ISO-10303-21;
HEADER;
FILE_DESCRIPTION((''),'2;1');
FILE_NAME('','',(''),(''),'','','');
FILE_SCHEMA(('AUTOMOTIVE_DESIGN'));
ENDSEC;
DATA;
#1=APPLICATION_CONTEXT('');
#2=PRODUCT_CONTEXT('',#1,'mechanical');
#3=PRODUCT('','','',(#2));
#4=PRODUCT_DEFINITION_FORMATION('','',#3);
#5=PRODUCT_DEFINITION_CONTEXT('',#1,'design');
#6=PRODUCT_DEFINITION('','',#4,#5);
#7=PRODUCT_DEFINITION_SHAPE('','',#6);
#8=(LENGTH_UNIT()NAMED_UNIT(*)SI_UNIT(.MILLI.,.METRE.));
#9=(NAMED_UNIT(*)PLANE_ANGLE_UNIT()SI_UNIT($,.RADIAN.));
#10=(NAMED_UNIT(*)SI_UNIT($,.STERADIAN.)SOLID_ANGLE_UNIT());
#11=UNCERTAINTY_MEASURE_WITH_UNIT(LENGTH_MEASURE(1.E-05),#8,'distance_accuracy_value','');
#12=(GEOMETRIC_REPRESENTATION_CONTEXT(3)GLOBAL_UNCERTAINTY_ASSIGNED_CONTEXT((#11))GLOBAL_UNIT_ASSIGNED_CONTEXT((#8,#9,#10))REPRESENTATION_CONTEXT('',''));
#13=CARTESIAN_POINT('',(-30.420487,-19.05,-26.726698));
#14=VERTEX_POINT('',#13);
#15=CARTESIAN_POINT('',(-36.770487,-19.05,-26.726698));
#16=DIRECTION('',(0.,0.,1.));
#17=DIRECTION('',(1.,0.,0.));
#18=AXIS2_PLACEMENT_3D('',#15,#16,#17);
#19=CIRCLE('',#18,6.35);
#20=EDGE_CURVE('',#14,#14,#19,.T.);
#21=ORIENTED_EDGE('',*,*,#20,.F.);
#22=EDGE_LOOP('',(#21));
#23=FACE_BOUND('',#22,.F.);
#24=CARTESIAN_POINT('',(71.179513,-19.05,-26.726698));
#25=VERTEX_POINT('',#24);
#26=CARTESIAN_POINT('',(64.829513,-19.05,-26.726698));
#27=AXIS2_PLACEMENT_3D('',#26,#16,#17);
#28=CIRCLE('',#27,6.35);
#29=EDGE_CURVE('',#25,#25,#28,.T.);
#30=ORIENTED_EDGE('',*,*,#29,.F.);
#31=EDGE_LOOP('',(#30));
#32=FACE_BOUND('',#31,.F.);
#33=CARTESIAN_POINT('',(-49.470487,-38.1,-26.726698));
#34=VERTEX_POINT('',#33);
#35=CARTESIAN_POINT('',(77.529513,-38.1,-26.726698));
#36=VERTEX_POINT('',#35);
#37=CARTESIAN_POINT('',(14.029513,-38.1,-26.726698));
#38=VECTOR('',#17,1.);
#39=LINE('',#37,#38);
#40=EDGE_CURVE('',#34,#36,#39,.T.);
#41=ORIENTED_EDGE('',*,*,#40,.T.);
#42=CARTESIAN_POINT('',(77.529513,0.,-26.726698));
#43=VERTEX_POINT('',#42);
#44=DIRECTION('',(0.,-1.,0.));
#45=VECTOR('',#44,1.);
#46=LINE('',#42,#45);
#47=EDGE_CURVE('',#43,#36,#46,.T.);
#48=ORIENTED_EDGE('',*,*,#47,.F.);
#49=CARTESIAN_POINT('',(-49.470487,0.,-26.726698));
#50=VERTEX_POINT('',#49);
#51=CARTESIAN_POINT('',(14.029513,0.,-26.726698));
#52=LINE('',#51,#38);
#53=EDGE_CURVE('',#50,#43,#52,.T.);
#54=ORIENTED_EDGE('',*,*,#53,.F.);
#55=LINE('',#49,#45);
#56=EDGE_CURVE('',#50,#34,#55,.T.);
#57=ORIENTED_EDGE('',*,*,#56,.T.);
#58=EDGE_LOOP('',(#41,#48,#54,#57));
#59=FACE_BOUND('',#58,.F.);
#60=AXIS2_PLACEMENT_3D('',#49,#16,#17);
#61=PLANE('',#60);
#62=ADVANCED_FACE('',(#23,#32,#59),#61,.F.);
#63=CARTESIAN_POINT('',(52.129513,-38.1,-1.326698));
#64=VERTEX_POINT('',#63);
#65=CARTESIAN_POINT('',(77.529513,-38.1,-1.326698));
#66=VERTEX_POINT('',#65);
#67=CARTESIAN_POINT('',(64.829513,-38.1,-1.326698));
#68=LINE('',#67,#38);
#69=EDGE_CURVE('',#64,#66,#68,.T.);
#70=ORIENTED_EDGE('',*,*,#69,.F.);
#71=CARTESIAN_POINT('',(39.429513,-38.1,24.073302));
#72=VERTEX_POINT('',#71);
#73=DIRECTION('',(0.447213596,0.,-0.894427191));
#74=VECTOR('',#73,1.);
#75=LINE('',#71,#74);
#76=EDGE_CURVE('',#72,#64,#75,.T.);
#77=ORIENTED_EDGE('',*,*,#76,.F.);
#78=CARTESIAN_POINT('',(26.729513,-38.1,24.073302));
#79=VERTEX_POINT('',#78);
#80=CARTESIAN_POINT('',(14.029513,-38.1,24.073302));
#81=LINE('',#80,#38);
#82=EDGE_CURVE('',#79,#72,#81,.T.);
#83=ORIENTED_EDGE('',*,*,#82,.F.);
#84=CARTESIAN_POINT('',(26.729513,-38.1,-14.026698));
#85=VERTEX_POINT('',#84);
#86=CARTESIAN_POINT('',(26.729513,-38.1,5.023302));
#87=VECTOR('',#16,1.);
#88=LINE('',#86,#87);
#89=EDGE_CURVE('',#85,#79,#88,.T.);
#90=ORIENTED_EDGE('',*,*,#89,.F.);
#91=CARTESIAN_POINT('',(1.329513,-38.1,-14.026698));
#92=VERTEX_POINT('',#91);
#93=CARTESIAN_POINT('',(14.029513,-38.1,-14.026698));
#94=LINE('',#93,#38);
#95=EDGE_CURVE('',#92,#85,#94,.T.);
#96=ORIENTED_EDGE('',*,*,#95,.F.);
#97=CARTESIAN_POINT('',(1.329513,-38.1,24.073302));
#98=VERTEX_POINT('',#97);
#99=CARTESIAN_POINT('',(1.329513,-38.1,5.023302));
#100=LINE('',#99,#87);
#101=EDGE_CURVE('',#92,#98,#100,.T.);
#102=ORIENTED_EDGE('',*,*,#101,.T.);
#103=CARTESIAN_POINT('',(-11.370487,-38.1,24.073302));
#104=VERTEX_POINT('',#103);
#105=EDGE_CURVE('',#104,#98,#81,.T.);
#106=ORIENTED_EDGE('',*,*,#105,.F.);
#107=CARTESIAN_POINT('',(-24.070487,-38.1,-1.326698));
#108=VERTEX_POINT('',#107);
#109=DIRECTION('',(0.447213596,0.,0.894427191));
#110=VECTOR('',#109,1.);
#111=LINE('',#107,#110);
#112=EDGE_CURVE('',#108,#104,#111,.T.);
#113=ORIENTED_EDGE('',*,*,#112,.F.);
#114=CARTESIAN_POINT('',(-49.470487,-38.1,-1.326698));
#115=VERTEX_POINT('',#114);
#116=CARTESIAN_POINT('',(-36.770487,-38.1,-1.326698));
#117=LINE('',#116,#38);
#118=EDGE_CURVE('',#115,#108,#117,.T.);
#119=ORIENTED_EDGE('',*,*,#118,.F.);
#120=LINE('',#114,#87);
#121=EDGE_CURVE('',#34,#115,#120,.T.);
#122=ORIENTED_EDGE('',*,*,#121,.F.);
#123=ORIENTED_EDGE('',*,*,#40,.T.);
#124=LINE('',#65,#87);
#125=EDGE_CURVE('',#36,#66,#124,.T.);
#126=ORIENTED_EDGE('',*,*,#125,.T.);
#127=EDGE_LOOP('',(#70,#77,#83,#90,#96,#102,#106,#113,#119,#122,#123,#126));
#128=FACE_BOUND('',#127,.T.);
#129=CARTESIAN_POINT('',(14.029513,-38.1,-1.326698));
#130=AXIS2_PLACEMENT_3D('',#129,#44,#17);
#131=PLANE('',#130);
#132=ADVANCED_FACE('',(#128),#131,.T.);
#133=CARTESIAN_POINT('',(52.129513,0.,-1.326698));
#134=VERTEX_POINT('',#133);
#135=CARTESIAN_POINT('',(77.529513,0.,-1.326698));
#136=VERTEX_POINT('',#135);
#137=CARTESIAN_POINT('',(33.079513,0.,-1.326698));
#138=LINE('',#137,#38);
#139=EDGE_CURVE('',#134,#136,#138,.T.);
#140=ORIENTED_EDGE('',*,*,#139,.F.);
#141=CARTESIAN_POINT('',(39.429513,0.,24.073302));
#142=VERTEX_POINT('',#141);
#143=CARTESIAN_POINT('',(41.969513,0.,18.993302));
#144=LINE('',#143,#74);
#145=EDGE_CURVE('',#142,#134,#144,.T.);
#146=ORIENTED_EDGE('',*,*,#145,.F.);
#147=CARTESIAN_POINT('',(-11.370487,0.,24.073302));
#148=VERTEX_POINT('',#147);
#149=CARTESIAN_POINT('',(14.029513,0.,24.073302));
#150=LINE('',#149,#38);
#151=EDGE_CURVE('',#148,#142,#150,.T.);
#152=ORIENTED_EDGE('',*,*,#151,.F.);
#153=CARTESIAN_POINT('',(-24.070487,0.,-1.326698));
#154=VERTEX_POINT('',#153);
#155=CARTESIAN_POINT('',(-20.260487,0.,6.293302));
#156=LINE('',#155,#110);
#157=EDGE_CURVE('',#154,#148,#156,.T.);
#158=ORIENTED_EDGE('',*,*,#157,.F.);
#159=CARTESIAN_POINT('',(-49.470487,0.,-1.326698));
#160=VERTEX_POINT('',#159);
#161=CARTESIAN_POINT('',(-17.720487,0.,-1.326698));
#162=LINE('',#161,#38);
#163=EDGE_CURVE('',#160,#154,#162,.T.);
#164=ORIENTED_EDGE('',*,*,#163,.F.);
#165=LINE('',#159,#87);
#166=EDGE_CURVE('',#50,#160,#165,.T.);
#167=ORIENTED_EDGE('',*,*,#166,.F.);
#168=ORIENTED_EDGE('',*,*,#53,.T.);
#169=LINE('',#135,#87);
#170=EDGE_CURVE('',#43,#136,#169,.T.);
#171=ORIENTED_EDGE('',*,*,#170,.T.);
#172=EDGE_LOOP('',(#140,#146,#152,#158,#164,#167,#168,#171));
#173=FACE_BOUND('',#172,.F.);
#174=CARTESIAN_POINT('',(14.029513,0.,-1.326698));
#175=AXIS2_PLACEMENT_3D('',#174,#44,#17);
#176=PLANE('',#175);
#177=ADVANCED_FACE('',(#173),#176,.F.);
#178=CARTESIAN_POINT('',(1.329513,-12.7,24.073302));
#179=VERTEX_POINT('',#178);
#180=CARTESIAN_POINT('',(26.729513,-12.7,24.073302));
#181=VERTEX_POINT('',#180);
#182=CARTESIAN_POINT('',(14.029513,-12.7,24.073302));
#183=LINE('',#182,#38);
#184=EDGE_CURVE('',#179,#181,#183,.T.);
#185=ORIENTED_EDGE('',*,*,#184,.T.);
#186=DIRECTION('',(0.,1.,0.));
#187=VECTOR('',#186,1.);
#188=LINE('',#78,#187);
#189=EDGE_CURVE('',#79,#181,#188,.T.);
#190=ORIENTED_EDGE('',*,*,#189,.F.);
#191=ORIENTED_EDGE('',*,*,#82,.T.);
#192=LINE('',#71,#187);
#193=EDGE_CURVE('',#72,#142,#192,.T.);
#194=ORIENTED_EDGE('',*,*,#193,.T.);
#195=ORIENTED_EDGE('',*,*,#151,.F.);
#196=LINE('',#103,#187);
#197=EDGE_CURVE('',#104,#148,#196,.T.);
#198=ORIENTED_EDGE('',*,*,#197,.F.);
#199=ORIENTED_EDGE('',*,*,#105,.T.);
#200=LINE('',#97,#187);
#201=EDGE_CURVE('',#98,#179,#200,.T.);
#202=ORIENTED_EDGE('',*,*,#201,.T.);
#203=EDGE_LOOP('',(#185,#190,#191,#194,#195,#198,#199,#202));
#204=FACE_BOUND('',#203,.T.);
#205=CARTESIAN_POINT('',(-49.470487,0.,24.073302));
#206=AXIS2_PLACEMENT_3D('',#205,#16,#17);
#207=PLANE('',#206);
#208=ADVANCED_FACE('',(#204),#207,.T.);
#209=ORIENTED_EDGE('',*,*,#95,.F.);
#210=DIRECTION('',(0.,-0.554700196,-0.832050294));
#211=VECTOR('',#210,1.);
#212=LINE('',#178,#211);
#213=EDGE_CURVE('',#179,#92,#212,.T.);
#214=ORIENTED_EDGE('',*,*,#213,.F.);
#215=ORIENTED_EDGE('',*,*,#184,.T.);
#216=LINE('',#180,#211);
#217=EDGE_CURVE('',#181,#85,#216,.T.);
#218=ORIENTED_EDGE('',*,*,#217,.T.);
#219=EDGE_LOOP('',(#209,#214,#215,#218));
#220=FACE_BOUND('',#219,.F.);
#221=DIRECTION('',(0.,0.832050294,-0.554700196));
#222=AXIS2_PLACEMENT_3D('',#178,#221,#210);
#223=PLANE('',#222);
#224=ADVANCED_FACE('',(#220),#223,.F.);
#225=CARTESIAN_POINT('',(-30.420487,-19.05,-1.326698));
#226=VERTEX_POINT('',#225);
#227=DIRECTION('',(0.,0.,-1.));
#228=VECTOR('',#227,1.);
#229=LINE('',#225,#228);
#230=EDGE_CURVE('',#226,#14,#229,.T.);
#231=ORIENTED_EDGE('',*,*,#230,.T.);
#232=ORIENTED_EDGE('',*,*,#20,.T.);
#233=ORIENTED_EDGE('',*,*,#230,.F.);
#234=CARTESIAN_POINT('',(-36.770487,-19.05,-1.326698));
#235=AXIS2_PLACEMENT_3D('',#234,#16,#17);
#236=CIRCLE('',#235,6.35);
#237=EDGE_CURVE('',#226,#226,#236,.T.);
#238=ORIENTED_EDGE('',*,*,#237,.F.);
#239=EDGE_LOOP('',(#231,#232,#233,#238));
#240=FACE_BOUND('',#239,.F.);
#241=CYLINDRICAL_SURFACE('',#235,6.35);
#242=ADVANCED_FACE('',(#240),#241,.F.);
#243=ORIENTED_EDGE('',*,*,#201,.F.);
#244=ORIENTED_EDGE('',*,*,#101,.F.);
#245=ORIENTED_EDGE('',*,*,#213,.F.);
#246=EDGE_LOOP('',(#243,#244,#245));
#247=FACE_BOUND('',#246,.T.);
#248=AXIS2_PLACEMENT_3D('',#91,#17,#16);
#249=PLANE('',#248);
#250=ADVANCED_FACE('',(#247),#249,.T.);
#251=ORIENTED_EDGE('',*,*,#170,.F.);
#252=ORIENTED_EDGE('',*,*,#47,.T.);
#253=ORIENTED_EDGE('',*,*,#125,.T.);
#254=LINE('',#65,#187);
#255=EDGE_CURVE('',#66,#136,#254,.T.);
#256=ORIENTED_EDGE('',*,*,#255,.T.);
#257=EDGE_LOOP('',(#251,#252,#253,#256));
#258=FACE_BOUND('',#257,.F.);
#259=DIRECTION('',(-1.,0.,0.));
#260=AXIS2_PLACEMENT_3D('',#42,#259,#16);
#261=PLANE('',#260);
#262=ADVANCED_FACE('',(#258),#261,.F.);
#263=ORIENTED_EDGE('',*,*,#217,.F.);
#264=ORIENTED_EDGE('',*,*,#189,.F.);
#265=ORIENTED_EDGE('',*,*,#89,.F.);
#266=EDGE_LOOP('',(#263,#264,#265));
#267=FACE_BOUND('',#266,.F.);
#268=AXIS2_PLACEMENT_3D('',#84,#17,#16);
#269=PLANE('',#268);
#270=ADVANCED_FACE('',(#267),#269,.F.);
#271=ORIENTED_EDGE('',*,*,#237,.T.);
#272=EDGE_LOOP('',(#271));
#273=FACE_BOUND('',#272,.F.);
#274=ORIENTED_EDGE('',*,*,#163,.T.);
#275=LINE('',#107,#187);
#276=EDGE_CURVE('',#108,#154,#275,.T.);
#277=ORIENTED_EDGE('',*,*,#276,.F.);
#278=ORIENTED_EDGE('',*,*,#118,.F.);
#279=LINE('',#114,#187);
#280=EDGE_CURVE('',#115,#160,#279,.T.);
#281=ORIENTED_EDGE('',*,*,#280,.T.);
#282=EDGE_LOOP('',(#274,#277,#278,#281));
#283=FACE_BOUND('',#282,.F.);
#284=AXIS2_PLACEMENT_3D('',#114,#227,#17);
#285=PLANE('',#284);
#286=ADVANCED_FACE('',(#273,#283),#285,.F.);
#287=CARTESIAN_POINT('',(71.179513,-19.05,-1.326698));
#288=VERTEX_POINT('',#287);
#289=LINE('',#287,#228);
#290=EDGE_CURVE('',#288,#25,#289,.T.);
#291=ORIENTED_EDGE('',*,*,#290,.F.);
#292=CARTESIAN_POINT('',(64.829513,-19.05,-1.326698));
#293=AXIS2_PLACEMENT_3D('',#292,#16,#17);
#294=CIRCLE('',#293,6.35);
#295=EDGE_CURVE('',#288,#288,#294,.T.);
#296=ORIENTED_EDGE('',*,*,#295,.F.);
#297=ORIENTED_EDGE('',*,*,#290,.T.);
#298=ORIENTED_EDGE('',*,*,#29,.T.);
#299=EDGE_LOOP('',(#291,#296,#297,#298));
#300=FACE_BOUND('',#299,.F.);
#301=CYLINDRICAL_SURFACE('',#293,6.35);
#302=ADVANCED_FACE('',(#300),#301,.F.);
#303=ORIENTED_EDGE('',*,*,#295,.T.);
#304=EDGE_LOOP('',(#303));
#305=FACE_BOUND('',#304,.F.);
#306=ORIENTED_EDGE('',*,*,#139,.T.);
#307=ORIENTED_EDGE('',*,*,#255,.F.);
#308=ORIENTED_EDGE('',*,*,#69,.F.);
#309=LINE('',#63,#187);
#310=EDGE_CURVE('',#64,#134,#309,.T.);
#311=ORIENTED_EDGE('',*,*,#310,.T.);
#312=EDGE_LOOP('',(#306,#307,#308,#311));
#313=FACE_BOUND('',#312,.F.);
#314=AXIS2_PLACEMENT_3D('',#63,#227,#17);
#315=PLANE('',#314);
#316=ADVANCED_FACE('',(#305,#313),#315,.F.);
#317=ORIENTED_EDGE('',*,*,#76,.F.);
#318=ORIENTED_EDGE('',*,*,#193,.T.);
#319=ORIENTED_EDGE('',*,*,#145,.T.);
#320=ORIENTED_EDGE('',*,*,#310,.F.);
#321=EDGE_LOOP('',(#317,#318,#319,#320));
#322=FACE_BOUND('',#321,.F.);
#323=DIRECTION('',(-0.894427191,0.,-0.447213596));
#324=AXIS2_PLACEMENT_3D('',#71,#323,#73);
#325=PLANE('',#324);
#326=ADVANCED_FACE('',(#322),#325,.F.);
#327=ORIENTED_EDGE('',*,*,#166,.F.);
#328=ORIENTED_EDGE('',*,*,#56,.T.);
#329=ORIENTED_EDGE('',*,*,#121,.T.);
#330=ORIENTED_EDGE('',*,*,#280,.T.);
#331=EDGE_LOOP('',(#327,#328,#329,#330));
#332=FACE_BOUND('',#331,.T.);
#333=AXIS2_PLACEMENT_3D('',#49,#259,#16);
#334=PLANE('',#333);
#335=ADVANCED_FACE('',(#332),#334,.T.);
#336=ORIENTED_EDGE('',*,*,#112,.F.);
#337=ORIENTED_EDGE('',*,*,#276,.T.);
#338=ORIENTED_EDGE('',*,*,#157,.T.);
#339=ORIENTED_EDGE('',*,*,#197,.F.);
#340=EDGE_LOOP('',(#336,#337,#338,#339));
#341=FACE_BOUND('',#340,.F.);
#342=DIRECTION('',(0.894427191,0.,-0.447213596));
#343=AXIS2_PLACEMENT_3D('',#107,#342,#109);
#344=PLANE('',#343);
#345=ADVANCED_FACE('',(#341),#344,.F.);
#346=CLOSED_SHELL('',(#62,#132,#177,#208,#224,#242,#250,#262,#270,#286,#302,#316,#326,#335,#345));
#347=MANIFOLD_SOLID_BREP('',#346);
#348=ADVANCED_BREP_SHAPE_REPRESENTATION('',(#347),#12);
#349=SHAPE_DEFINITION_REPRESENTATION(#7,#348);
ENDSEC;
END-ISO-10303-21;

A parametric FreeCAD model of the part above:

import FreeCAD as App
import Part
import Sketcher

V = App.Vector
Q = App.Units.Quantity

doc = App.newDocument("Part")
body = doc.addObject("PartDesign::Body", "Body")

# Sketch on XZ plane
sketch1 = doc.addObject("Sketcher::SketchObject", "Sketch")
body.addObject(sketch1)
sketch1.AttachmentSupport = (doc.XZ_Plane, [""])
sketch1.MapMode = "FlatFace"
sketch1.addGeometry([
    Part.LineSegment(V(-49, 24, 0), V(-49, -27, 0)),
    Part.LineSegment(V(-49, -27, 0), V(78, -27, 0)),
    Part.LineSegment(V(78, -27, 0), V(78, 24, 0)),
    Part.LineSegment(V(78, 24, 0), V(-49, 24, 0)),
], False)
sketch1.addConstraint([
    Sketcher.Constraint("Coincident", 0, 2, 1, 1),
    Sketcher.Constraint("Coincident", 1, 2, 2, 1),
    Sketcher.Constraint("Coincident", 2, 2, 3, 1),
    Sketcher.Constraint("Coincident", 3, 2, 0, 1),
    Sketcher.Constraint("Vertical", 0),
    Sketcher.Constraint("Horizontal", 1),
    Sketcher.Constraint("Vertical", 2),
    Sketcher.Constraint("Horizontal", 3),
    Sketcher.Constraint("DistanceX", 1, 1, 1, 2, Q("5 in")),
    Sketcher.Constraint("DistanceY", 0, 2, 0, 1, Q("2 in")),
    Sketcher.Constraint("DistanceX", 0, 2, -1, 1, 49.470487),
    Sketcher.Constraint("DistanceY", 0, 2, -1, 1, 26.726698),
])
pad1 = doc.addObject("PartDesign::Pad", "Pad")
body.addObject(pad1)
pad1.Profile = sketch1
pad1.Length = Q("1.5 in")

# Sketch on XZ plane
sketch2 = doc.addObject("Sketcher::SketchObject", "Sketch001")
body.addObject(sketch2)
sketch2.AttachmentSupport = (doc.XZ_Plane, [""])
sketch2.MapMode = "FlatFace"
sketch2.AttachmentOffset = App.Placement(V(0, 0, 1.5 * 25.4), App.Rotation())
sketch2.addGeometry([
    Part.LineSegment(V(-49, 24, 0), V(-49, -1, 0)),  # 0
    Part.LineSegment(V(-49, -1, 0), V(-24, -1, 0)),  # 1
    Part.LineSegment(V(-24, -1, 0), V(-24, 24, 0)),  # 2
    Part.LineSegment(V(-24, 24, 0), V(-49, 24, 0)),  # 3
    Part.LineSegment(V(52, 24, 0), V(52, -1, 0)),  # 4
    Part.LineSegment(V(52, -1, 0), V(78, -1, 0)),  # 5
    Part.LineSegment(V(78, -1, 0), V(78, 24, 0)),  # 6
    Part.LineSegment(V(78, 24, 0), V(52, 24, 0)),  # 7
], False)
sketch2.addConstraint([
    Sketcher.Constraint("Coincident", 0, 2, 1, 1),
    Sketcher.Constraint("Coincident", 1, 2, 2, 1),
    Sketcher.Constraint("Coincident", 2, 2, 3, 1),
    Sketcher.Constraint("Coincident", 3, 2, 0, 1),
    Sketcher.Constraint("Coincident", 4, 2, 5, 1),
    Sketcher.Constraint("Coincident", 5, 2, 6, 1),
    Sketcher.Constraint("Coincident", 6, 2, 7, 1),
    Sketcher.Constraint("Coincident", 7, 2, 4, 1),
    Sketcher.Constraint("Vertical", 0),
    Sketcher.Constraint("Horizontal", 1),
    Sketcher.Constraint("Vertical", 2),
    Sketcher.Constraint("Horizontal", 3),
    Sketcher.Constraint("Vertical", 4),
    Sketcher.Constraint("Horizontal", 5),
    Sketcher.Constraint("Vertical", 6),
    Sketcher.Constraint("Horizontal", 7),
    Sketcher.Constraint("Horizontal", 1, 2, 4, 2),
    Sketcher.Constraint("Horizontal", 3, 2, 6, 2),
    Sketcher.Constraint("Equal", 3, 5),
    Sketcher.Constraint("Equal", 7, 0),
    Sketcher.Constraint("DistanceX", 1, 1, 1, 2, Q("1 in")),
    Sketcher.Constraint("DistanceX", 1, 2, 4, 2, Q("3 in")),
    Sketcher.Constraint("DistanceX", 0, 2, -1, 1, 49.470487),
    Sketcher.Constraint("DistanceY", 0, 2, -1, 1, 1.326698),
])
pocket1 = doc.addObject("PartDesign::Pocket", "Pocket")
body.addObject(pocket1)
pocket1.Profile = sketch2
pocket1.Type = "ThroughAll"

# Sketch on XZ plane
sketch3 = doc.addObject("Sketcher::SketchObject", "Sketch002")
body.addObject(sketch3)
sketch3.AttachmentSupport = (doc.XZ_Plane, [""])
sketch3.MapMode = "FlatFace"
sketch3.AttachmentOffset = App.Placement(V(0, 0, 1.5 * 25.4), App.Rotation())
sketch3.addGeometry([
    Part.LineSegment(V(-24, 24, 0), V(-24, -1, 0)),  # 0
    Part.LineSegment(V(-24, -1, 0), V(-11, 24, 0)),  # 1
    Part.LineSegment(V(-11, 24, 0), V(-24, 24, 0)),  # 2
    Part.LineSegment(V(52, 24, 0), V(39, 24, 0)),  # 3
    Part.LineSegment(V(39, 24, 0), V(52, -1, 0)),  # 4
    Part.LineSegment(V(52, -1, 0), V(52, 24, 0)),  # 5
], False)
sketch3.addConstraint([
    Sketcher.Constraint("Coincident", 0, 2, 1, 1),
    Sketcher.Constraint("Coincident", 1, 2, 2, 1),
    Sketcher.Constraint("Coincident", 2, 2, 0, 1),
    Sketcher.Constraint("Coincident", 3, 2, 4, 1),
    Sketcher.Constraint("Coincident", 4, 2, 5, 1),
    Sketcher.Constraint("Coincident", 5, 2, 3, 1),
    Sketcher.Constraint("Vertical", 0),
    Sketcher.Constraint("Horizontal", 2),
    Sketcher.Constraint("Horizontal", 3),
    Sketcher.Constraint("Vertical", 5),
    Sketcher.Constraint("Horizontal", 2, 2, 3, 2),
    Sketcher.Constraint("Horizontal", 0, 2, 4, 2),
    Sketcher.Constraint("Equal", 2, 3),
    Sketcher.Constraint("DistanceY", 0, 2, 0, 1, Q("1 in")),
    Sketcher.Constraint("DistanceX", 2, 2, 2, 1, Q("0.5 in")),
    Sketcher.Constraint("DistanceX", 1, 2, 3, 2, Q("2 in")),
    Sketcher.Constraint("DistanceX", 0, 2, -1, 1, 24.070487),
    Sketcher.Constraint("DistanceY", 0, 2, -1, 1, 1.326698),
])
pocket2 = doc.addObject("PartDesign::Pocket", "Pocket001")
body.addObject(pocket2)
pocket2.Profile = sketch3
pocket2.Type = "ThroughAll"

# Sketch on XY plane
sketch4 = doc.addObject("Sketcher::SketchObject", "Sketch003")
body.addObject(sketch4)
sketch4.AttachmentSupport = (doc.XY_Plane, [""])
sketch4.MapMode = "FlatFace"
sketch4.AttachmentOffset = App.Placement(V(0, 0, -1.326698), App.Rotation())
sketch4.addGeometry([
    Part.Circle(V(65, -19, 0), V(0, 0, 1), 6),
    Part.Circle(V(-37, -19, 0), V(0, 0, 1), 6),
], False)
sketch4.addConstraint([
    Sketcher.Constraint("Equal", 0, 1),
    Sketcher.Constraint("Horizontal", 0, 3, 1, 3),
    Sketcher.Constraint("Diameter", 0, Q("0.5 in")),
    Sketcher.Constraint("DistanceX", 1, 3, 0, 3, Q("4 in")),
    Sketcher.Constraint("DistanceY", 0, 3, -1, 1, Q("0.75 in")),
    Sketcher.Constraint("DistanceX", -1, 1, 0, 3, 64.829513),
])
pocket3 = doc.addObject("PartDesign::Pocket", "Pocket002")
body.addObject(pocket3)
pocket3.Profile = sketch4
pocket3.Type = "ThroughAll"

# Sketch on XZ plane
sketch5 = doc.addObject("Sketcher::SketchObject", "Sketch004")
body.addObject(sketch5)
sketch5.AttachmentSupport = (doc.XZ_Plane, [""])
sketch5.MapMode = "FlatFace"
sketch5.AttachmentOffset = App.Placement(V(0, 0, 1.5 * 25.4), App.Rotation())
sketch5.addGeometry([
    Part.LineSegment(V(1, 24, 0), V(1, -14, 0)),
    Part.LineSegment(V(1, -14, 0), V(27, -14, 0)),
    Part.LineSegment(V(27, -14, 0), V(27, 24, 0)),
    Part.LineSegment(V(27, 24, 0), V(1, 24, 0)),
], False)
sketch5.addConstraint([
    Sketcher.Constraint("Coincident", 0, 2, 1, 1),
    Sketcher.Constraint("Coincident", 1, 2, 2, 1),
    Sketcher.Constraint("Coincident", 2, 2, 3, 1),
    Sketcher.Constraint("Coincident", 3, 2, 0, 1),
    Sketcher.Constraint("Vertical", 0),
    Sketcher.Constraint("Horizontal", 1),
    Sketcher.Constraint("Vertical", 2),
    Sketcher.Constraint("Horizontal", 3),
    Sketcher.Constraint("DistanceX", 1, 1, 1, 2, Q("1 in")),
    Sketcher.Constraint("DistanceY", 0, 2, 0, 1, Q("1.5 in")),
    Sketcher.Constraint("DistanceX", -1, 1, 0, 2, 1.329513),
    Sketcher.Constraint("DistanceY", 0, 2, -1, 1, 14.026698),
])
pocket4 = doc.addObject("PartDesign::Pocket", "Pocket003")
body.addObject(pocket4)
pocket4.Profile = sketch5
pocket4.Length = Q("1 in")

# Sketch on YZ plane
sketch6 = doc.addObject("Sketcher::SketchObject", "Sketch005")
body.addObject(sketch6)
sketch6.AttachmentSupport = (doc.YZ_Plane, [""])
sketch6.MapMode = "FlatFace"
sketch6.AttachmentOffset = App.Placement(V(0, 0, 1.329513), App.Rotation())
sketch6.addGeometry([
    Part.LineSegment(V(-13, 24, 0), V(-38, -14, 0)),
    Part.LineSegment(V(-38, -14, 0), V(-13, -14, 0)),
    Part.LineSegment(V(-13, -14, 0), V(-13, 24, 0)),
], False)
sketch6.addConstraint([
    Sketcher.Constraint("Coincident", 0, 2, 1, 1),
    Sketcher.Constraint("Coincident", 1, 2, 2, 1),
    Sketcher.Constraint("Coincident", 2, 2, 0, 1),
    Sketcher.Constraint("Horizontal", 1),
    Sketcher.Constraint("Vertical", 2),
    Sketcher.Constraint("DistanceX", 1, 1, 1, 2, Q("1 in")),
    Sketcher.Constraint("DistanceY", 2, 1, 2, 2, Q("1.5 in")),
    Sketcher.Constraint("DistanceX", 0, 2, -1, 1, Q("1.5 in")),
    Sketcher.Constraint("DistanceY", 0, 2, -1, 1, 14.026698),
])
pad2 = doc.addObject("PartDesign::Pad", "Pad001")
body.addObject(pad2)
pad2.Profile = sketch6
pad2.Length = Q("1 in")

doc.recompute()
